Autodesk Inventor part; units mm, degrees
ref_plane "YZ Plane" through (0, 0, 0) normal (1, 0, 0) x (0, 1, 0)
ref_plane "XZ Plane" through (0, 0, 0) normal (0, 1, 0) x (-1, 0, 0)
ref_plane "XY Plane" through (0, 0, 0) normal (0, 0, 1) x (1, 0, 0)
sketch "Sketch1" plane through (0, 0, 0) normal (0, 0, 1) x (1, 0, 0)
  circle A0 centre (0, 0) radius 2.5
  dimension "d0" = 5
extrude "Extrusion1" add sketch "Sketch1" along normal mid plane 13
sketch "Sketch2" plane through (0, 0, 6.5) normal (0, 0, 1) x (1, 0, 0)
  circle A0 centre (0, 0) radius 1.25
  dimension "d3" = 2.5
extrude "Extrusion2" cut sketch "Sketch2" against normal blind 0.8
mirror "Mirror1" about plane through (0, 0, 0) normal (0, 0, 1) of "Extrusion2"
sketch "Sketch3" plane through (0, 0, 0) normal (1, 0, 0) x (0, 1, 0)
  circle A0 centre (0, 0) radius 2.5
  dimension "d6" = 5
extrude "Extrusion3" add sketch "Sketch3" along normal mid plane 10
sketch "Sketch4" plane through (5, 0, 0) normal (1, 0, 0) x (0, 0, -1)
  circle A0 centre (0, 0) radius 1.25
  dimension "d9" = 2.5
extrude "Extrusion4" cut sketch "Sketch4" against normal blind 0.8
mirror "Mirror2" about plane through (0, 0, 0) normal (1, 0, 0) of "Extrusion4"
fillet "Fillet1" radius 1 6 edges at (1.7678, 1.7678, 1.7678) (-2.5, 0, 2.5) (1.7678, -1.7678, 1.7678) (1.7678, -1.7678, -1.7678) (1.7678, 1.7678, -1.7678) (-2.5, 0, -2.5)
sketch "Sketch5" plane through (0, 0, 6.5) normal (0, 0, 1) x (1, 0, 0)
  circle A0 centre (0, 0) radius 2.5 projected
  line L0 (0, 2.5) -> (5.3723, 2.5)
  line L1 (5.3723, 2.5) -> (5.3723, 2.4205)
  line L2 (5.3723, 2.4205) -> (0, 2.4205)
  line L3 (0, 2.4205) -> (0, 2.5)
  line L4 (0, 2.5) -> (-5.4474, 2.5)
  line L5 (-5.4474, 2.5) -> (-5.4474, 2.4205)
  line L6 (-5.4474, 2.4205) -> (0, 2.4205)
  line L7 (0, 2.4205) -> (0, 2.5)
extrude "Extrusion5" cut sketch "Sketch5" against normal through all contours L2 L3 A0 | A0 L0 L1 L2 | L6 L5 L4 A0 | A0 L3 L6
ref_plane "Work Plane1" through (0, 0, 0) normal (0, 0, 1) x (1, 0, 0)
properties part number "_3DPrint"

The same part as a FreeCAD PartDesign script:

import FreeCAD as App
import Part
import Sketcher

V = App.Vector
Q = App.Units.Quantity


def edges_at(feature, points):
    """Names of the edges that pass closest to the given points."""
    edges = feature.Shape.Edges
    near = lambda p: min(range(len(edges)), key=lambda i: edges[i].distToShape(Part.Vertex(*p))[0])
    return sorted({f"Edge{near(p) + 1}" for p in points})

doc = App.newDocument("Part")
body = doc.addObject("PartDesign::Body", "Body")

# Sketch on XY plane
sketch1 = body.newObject("Sketcher::SketchObject", "Sketch")
sketch1.AttachmentSupport = (doc.getObject("XY_Plane"), [""])
sketch1.MapMode = "FlatFace"
sketch1.addGeometry(Part.Circle(V(0, 0, 0), V(0, 0, 1), 2.5), False)
sketch1.addConstraint([
    Sketcher.Constraint("Coincident", 0, 3, -1, 1),
    Sketcher.Constraint("Diameter", 0, Q("5 mm")),
])
pad1 = body.newObject("PartDesign::Pad", "Pad")
pad1.Profile = sketch1
pad1.Length = 13
pad1.Midplane = True

# Sketch on XY plane
sketch2 = body.newObject("Sketcher::SketchObject", "Sketch001")
sketch2.AttachmentSupport = (doc.getObject("XY_Plane"), [""])
sketch2.MapMode = "FlatFace"
sketch2.AttachmentOffset = App.Placement(V(0, 0, 6.5), App.Rotation())
sketch2.addGeometry(Part.Circle(V(0, 0, 0), V(0, 0, 1), 1.2), False)
sketch2.addConstraint([
    Sketcher.Constraint("Coincident", 0, 3, -1, 1),
    Sketcher.Constraint("Diameter", 0, Q("2.5 mm")),
])
pocket1 = body.newObject("PartDesign::Pocket", "Pocket")
pocket1.Profile = sketch2
pocket1.Length = 0.8
doc.recompute()

mirrored = body.newObject("PartDesign::Mirrored", "Mirrored")
mirrored.Originals = [pocket1]
mirrored.MirrorPlane = (doc.getObject("XY_Plane"), [""])
body.Tip = mirrored

# Sketch on YZ plane
sketch3 = body.newObject("Sketcher::SketchObject", "Sketch002")
sketch3.AttachmentSupport = (doc.getObject("YZ_Plane"), [""])
sketch3.MapMode = "FlatFace"
sketch3.addGeometry(Part.Circle(V(0, 0, 0), V(0, 0, 1), 2.5), False)
sketch3.addConstraint([
    Sketcher.Constraint("Coincident", 0, 3, -1, 1),
    Sketcher.Constraint("Diameter", 0, Q("5 mm")),
])
pad2 = body.newObject("PartDesign::Pad", "Pad001")
pad2.Profile = sketch3
pad2.Length = 10
pad2.Midplane = True

# Sketch on YZ plane
sketch4 = body.newObject("Sketcher::SketchObject", "Sketch003")
sketch4.AttachmentSupport = (doc.getObject("YZ_Plane"), [""])
sketch4.MapMode = "FlatFace"
sketch4.AttachmentOffset = App.Placement(V(0, 0, 5), App.Rotation())
sketch4.addGeometry(Part.Circle(V(0, 0, 0), V(0, 0, 1), 1.2), False)
sketch4.addConstraint([
    Sketcher.Constraint("Coincident", 0, 3, -1, 1),
    Sketcher.Constraint("Diameter", 0, Q("2.5 mm")),
])
pocket2 = body.newObject("PartDesign::Pocket", "Pocket001")
pocket2.Profile = sketch4
pocket2.Length = 0.8
doc.recompute()

mirrored2 = body.newObject("PartDesign::Mirrored", "Mirrored001")
mirrored2.Originals = [pocket2]
mirrored2.MirrorPlane = (doc.getObject("YZ_Plane"), [""])
body.Tip = mirrored2
doc.recompute()

fillet = body.newObject("PartDesign::Fillet", "Fillet")
fillet.Base = (mirrored2, edges_at(mirrored2, [
    (1.768, 1.768, 1.768),
    (-2.5, 0, 2.5),
    (1.768, -1.768, 1.768),
    (1.768, -1.768, -1.768),
    (1.768, 1.768, -1.768),
    (-2.5, 0, -2.5),
]))
fillet.Radius = 1

# Sketch on XY plane
sketch5 = body.newObject("Sketcher::SketchObject", "Sketch004")
sketch5.AttachmentSupport = (doc.getObject("XY_Plane"), [""])
sketch5.MapMode = "FlatFace"
sketch5.AttachmentOffset = App.Placement(V(0, 0, 6.5), App.Rotation())
sketch5.addGeometry([
    Part.LineSegment(V(5.37, 2.42, 0), V(5.37, 2.5, 0)),
    Part.LineSegment(V(5.37, 2.5, 0), V(-5.45, 2.5, 0)),
    Part.LineSegment(V(-5.45, 2.5, 0), V(-5.45, 2.42, 0)),
    Part.LineSegment(V(-5.45, 2.42, 0), V(5.37, 2.42, 0)),
], False)
sketch5.addConstraint([
    Sketcher.Constraint("Coincident", 0, 2, 1, 1),
    Sketcher.Constraint("Coincident", 1, 2, 2, 1),
    Sketcher.Constraint("Coincident", 2, 2, 3, 1),
    Sketcher.Constraint("Coincident", 3, 2, 0, 1),
    Sketcher.Constraint("Vertical", 0),
    Sketcher.Constraint("Horizontal", 1),
    Sketcher.Constraint("Vertical", 2),
    Sketcher.Constraint("Horizontal", 3),
    Sketcher.Constraint("DistanceY", -1, 1, 0, 2, Q("2.5 mm")),
    Sketcher.Constraint("DistanceX", 1, 2, 1, 1, Q("10.8197 mm")),
    Sketcher.Constraint("DistanceY", 0, 1, 0, 2, Q("0.0795 mm")),
    Sketcher.Constraint("DistanceX", -1, 1, 0, 2, Q("5.3723 mm")),
])
pocket3 = body.newObject("PartDesign::Pocket", "Pocket002")
pocket3.Profile = sketch5
pocket3.Type = "ThroughAll"

doc.recompute()
